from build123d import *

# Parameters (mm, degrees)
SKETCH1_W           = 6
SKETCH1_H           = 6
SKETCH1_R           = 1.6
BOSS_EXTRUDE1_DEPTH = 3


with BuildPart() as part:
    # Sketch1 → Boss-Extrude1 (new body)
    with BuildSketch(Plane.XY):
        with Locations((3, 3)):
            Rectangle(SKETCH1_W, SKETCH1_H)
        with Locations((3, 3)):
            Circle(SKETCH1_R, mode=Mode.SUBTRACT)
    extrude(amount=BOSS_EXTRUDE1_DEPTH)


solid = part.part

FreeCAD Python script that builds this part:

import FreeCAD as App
import Part
import Sketcher

V = App.Vector
Q = App.Units.Quantity

doc = App.newDocument("Part")
body = doc.addObject("PartDesign::Body", "Body")

# Sketch on XY plane
sketch1 = body.newObject("Sketcher::SketchObject", "Sketch")
sketch1.AttachmentSupport = (doc.getObject("XY_Plane"), [""])
sketch1.MapMode = "FlatFace"
sketch1.addGeometry([
    Part.LineSegment(V(0, 6, 0), V(0, 0, 0)),  # 0
    Part.LineSegment(V(0, 0, 0), V(6, 0, 0)),  # 1
    Part.LineSegment(V(6, 0, 0), V(6, 6, 0)),  # 2
    Part.LineSegment(V(6, 6, 0), V(0, 6, 0)),  # 3
    Part.Circle(V(3, 3, 0), V(0, 0, 1), 1.6),  # 4
], False)
sketch1.addConstraint([
    Sketcher.Constraint("Coincident", 0, 2, 1, 1),
    Sketcher.Constraint("Coincident", 1, 2, 2, 1),
    Sketcher.Constraint("Coincident", 2, 2, 3, 1),
    Sketcher.Constraint("Coincident", 3, 2, 0, 1),
    Sketcher.Constraint("Vertical", 0),
    Sketcher.Constraint("Horizontal", 1),
    Sketcher.Constraint("Vertical", 2),
    Sketcher.Constraint("Horizontal", 3),
    Sketcher.Constraint("Coincident", 0, 2, -1, 1),
    Sketcher.Constraint("Equal", 3, 0),
    Sketcher.Constraint("Diameter", 4, Q("3.2 mm")),
    Sketcher.Constraint("DistanceX", 1, 1, 1, 2, Q("6 mm")),
    Sketcher.Constraint("DistanceX", -1, 1, 4, 3, Q("3 mm")),
    Sketcher.Constraint("DistanceY", -1, 1, 4, 3, Q("3 mm")),
])
pad1 = body.newObject("PartDesign::Pad", "Pad")
pad1.Profile = sketch1
pad1.Length = 3

doc.recompute()
